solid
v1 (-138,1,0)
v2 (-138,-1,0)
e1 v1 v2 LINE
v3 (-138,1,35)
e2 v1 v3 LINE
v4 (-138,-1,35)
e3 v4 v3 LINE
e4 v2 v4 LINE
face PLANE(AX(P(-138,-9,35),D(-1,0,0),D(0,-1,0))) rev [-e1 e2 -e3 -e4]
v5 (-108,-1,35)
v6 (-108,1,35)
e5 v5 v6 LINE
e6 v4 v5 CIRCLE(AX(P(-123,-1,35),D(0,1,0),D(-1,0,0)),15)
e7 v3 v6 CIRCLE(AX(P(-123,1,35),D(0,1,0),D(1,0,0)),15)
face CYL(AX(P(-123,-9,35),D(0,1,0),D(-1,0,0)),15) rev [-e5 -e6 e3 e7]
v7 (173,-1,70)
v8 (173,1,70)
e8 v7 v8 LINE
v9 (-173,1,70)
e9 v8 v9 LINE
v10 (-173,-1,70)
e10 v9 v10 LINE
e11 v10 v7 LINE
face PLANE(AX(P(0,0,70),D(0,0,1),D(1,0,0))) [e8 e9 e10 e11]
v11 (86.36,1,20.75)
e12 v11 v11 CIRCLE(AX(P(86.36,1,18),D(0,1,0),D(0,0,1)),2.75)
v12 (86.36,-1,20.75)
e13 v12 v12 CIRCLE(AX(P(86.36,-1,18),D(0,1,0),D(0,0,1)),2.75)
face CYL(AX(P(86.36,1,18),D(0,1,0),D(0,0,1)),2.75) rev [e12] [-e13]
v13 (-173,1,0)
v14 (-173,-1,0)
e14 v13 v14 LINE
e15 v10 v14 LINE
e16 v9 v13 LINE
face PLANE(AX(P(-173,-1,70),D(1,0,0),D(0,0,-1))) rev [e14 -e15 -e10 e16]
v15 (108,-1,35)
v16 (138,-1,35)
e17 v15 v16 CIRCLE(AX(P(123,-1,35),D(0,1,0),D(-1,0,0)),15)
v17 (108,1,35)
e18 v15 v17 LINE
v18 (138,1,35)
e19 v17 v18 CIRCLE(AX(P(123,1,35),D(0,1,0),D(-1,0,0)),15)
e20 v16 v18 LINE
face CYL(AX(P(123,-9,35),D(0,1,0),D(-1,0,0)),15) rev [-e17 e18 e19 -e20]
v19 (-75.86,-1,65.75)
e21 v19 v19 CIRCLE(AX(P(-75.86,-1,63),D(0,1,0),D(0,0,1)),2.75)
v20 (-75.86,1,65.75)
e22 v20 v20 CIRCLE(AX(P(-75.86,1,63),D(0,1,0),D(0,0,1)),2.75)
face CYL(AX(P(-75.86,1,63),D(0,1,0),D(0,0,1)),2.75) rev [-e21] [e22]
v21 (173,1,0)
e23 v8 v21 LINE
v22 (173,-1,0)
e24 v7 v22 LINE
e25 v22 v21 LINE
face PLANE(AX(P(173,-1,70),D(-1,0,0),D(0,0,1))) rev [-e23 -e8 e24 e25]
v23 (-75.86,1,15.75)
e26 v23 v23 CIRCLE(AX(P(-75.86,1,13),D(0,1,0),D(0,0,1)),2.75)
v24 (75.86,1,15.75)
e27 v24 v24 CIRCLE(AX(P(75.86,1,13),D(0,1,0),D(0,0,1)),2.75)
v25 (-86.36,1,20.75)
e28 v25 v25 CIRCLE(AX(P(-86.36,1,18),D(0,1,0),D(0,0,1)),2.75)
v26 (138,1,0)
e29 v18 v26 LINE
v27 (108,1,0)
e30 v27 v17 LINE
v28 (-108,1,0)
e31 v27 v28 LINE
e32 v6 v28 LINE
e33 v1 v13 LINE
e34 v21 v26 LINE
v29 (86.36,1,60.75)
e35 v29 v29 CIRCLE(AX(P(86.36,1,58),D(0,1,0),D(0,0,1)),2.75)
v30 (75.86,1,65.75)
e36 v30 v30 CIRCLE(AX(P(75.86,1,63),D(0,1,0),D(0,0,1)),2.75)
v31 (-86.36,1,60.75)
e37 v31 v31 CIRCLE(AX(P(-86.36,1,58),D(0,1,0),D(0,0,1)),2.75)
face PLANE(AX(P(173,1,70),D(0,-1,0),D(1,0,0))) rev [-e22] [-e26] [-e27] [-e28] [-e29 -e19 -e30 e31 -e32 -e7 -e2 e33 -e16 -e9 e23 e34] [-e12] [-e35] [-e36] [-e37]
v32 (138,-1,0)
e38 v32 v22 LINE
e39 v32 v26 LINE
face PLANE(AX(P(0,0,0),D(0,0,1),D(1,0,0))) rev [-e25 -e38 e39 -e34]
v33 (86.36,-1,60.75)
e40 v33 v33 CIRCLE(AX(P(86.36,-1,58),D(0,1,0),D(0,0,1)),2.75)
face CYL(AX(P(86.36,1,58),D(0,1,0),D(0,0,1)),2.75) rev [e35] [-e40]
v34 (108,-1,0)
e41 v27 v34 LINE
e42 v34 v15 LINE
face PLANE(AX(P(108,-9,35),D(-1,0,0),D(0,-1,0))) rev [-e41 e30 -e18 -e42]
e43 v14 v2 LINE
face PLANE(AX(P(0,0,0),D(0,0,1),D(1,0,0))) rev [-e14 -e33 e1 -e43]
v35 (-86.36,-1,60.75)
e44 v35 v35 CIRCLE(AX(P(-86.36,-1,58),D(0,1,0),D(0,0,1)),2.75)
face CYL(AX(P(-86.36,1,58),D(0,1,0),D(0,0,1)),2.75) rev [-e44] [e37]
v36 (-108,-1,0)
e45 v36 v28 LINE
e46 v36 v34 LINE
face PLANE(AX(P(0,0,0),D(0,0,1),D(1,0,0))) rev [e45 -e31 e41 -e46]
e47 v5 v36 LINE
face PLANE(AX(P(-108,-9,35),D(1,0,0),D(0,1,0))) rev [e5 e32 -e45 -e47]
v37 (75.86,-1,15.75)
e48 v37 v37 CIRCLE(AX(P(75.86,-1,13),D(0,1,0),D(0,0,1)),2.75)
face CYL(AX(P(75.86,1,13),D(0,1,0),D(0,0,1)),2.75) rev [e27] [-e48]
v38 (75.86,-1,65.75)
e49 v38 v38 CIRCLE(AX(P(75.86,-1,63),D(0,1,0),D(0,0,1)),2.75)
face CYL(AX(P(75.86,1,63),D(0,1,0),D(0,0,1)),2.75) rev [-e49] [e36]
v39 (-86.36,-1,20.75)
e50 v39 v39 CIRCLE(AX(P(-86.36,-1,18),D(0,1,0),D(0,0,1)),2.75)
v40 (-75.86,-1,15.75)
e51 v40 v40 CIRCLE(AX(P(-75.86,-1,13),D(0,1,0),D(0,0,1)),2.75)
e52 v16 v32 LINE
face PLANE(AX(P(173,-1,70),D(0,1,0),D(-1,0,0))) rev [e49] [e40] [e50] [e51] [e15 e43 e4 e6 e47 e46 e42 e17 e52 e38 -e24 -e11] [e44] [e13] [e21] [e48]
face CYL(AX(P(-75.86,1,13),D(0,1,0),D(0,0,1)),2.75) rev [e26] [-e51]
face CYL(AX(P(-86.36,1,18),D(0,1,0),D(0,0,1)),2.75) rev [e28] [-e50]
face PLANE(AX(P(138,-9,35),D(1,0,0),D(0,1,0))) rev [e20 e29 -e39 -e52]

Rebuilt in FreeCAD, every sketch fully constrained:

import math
import FreeCAD as App
import Part
import Sketcher
from FreeCAD import Vector


def add_polygon(sketch, points):
    """Adds a closed chain of lines whose ends are joined by coincident constraints."""
    first, n = sketch.GeometryCount, len(points)
    for a, b in zip(points, points[1:] + points[:1]):
        sketch.addGeometry(Part.LineSegment(App.Vector(*a, 0), App.Vector(*b, 0)), False)
    for i in range(n):
        sketch.addConstraint(Sketcher.Constraint("Coincident", first + i, 2, first + (i + 1) % n, 1))

doc = App.newDocument("Part")
params = doc.addObject("Spreadsheet::Sheet", "Params")
for row, (alias, value) in enumerate([
    ("sketch1_width", "346 mm"),
    ("sketch1_height", "2 mm"),
    ("pad1_length", "70 mm"),
    ("sketch2_diameter", "5.5 mm"),
    ("hole_diameter", "5.5 mm"),
    ("sketch3_radius", "15 mm"),
    ("sketch3_height", "35 mm"),
    ("pocket1_length", "10 mm"),
], start=1):
    params.set(f"A{row}", alias)
    params.set(f"B{row}", "=" + value)
    params.setAlias(f"B{row}", alias)

body = doc.addObject("PartDesign::Body", "Body")

sketch1 = body.newObject("Sketcher::SketchObject", "Sketch")
sketch1.AttachmentSupport = (doc.getObject("XY_Plane"), [""])
sketch1.MapMode = "FlatFace"
add_polygon(sketch1, [(-173, 1), (-173, -1), (173, -1), (173, 1)])
sketch1.addConstraint([
    Sketcher.Constraint("Vertical", 0),
    Sketcher.Constraint("Horizontal", 1),
    Sketcher.Constraint("Vertical", 2),
    Sketcher.Constraint("Horizontal", 3),
    Sketcher.Constraint("Symmetric", 0, 2, 2, 2, -1, 1),
    Sketcher.Constraint("DistanceX", 1, 1, 1, 2, 346.0),
    Sketcher.Constraint("DistanceY", 0, 2, 0, 1, 2.0),
])
sketch1.setExpression("Constraints[9]", "Params.sketch1_width")
sketch1.setExpression("Constraints[10]", "Params.sketch1_height")
pad1 = body.newObject("PartDesign::Pad", "Pad")
pad1.Profile = sketch1
pad1.setExpression("Length", "Params.pad1_length")

sketch2 = body.newObject("Sketcher::SketchObject", "Sketch001")
sketch2.AttachmentSupport = (doc.getObject("XZ_Plane"), [""])
sketch2.MapMode = "FlatFace"
sketch2.AttachmentOffset = App.Placement(Vector(0, 0, -1), App.Rotation())
sketch2.addGeometry([
    Part.Circle(Vector(86.4, 18, 0), Vector(0, 0, 1), 2.8),
    Part.Circle(Vector(75.9, 13, 0), Vector(0, 0, 1), 2.8),
    Part.Circle(Vector(86.4, 58, 0), Vector(0, 0, 1), 2.8),
    Part.Circle(Vector(75.9, 63, 0), Vector(0, 0, 1), 2.8),
], False)
sketch2.addConstraint([
    Sketcher.Constraint("Equal", 0, 1),
    Sketcher.Constraint("Equal", 1, 2),
    Sketcher.Constraint("Equal", 2, 3),
    Sketcher.Constraint("Vertical", 0, 3, 2, 3),
    Sketcher.Constraint("Vertical", 1, 3, 3, 3),
    Sketcher.Constraint("Diameter", 0, 5.5),
    Sketcher.Constraint("DistanceY", -1, 1, 0, 3, 18.0),
    Sketcher.Constraint("DistanceY", -1, 1, 1, 3, 13.0),
    Sketcher.Constraint("DistanceY", -1, 1, 2, 3, 58.0),
    Sketcher.Constraint("DistanceY", -1, 1, 3, 3, 63.0),
    Sketcher.Constraint("DistanceX", 1, 3, 0, 3, 10.5),
    Sketcher.Constraint("DistanceX", -1, 1, 0, 3, 86.36),
])
sketch2.setExpression("Constraints[5]", "Params.sketch2_diameter")
doc.recompute()
hole = body.newObject("PartDesign::Hole", "Hole")
hole.Profile = sketch2
hole.ThreadType = "None"
hole.setExpression("Diameter", "Params.hole_diameter")
hole.DepthType = "ThroughAll"
hole.Reversed = True
doc.recompute()

mirrored = body.newObject("PartDesign::Mirrored", "Mirrored")
mirrored.Originals = [hole]
mirrored.MirrorPlane = (doc.getObject("YZ_Plane"), [""])
body.Tip = mirrored

sketch3 = body.newObject("Sketcher::SketchObject", "Sketch002")
sketch3.AttachmentSupport = (doc.getObject("XZ_Plane"), [""])
sketch3.MapMode = "FlatFace"
sketch3.AttachmentOffset = App.Placement(Vector(0, 0, -1), App.Rotation())
sketch3.addGeometry([
    Part.LineSegment(Vector(138, 35, 0), Vector(138, 0, 0)),
    Part.LineSegment(Vector(138, 0, 0), Vector(108, 0, 0)),
    Part.LineSegment(Vector(108, 0, 0), Vector(108, 35, 0)),
    Part.ArcOfCircle(Part.Circle(Vector(123, 35, 0), Vector(0, 0, 1), 15), math.radians(0), math.radians(180)),
    Part.LineSegment(Vector(-108, 35, 0), Vector(-108, 0, 0)),
    Part.LineSegment(Vector(-108, 0, 0), Vector(-138, 0, 0)),
    Part.LineSegment(Vector(-138, 0, 0), Vector(-138, 35, 0)),
    Part.ArcOfCircle(Part.Circle(Vector(-123, 35, 0), Vector(0, 0, 1), 15), math.radians(0), math.radians(180)),
], False)
sketch3.addConstraint([
    Sketcher.Constraint("Coincident", 0, 2, 1, 1),
    Sketcher.Constraint("Coincident", 1, 2, 2, 1),
    Sketcher.Constraint("Tangent", 2, 2, 3, 2),
    Sketcher.Constraint("Tangent", 3, 1, 0, 1),
    Sketcher.Constraint("Coincident", 4, 2, 5, 1),
    Sketcher.Constraint("Coincident", 5, 2, 6, 1),
    Sketcher.Constraint("Tangent", 6, 2, 7, 2),
    Sketcher.Constraint("Tangent", 7, 1, 4, 1),
    Sketcher.Constraint("Vertical", 0),
    Sketcher.Constraint("Horizontal", 1),
    Sketcher.Constraint("Vertical", 2),
    Sketcher.Constraint("Vertical", 4),
    Sketcher.Constraint("Horizontal", 5),
    Sketcher.Constraint("Vertical", 6),
    Sketcher.Constraint("Equal", 3, 7),
    Sketcher.Constraint("Symmetric", 1, 2, 4, 2, -1, 1),
    Sketcher.Constraint("PointOnObject", 0, 2, -1),
    Sketcher.Constraint("Horizontal", 3, 3, 7, 3),
    Sketcher.Constraint("Radius", 3, 15.0),
    Sketcher.Constraint("DistanceY", 0, 2, 0, 1, 35.0),
    Sketcher.Constraint("DistanceX", -1, 1, 3, 3, 123.0),
])
sketch3.setExpression("Constraints[18]", "Params.sketch3_radius")
sketch3.setExpression("Constraints[19]", "Params.sketch3_height")
pocket1 = body.newObject("PartDesign::Pocket", "Pocket")
pocket1.Profile = sketch3
pocket1.setExpression("Length", "Params.pocket1_length")
pocket1.Reversed = True

doc.recompute()
